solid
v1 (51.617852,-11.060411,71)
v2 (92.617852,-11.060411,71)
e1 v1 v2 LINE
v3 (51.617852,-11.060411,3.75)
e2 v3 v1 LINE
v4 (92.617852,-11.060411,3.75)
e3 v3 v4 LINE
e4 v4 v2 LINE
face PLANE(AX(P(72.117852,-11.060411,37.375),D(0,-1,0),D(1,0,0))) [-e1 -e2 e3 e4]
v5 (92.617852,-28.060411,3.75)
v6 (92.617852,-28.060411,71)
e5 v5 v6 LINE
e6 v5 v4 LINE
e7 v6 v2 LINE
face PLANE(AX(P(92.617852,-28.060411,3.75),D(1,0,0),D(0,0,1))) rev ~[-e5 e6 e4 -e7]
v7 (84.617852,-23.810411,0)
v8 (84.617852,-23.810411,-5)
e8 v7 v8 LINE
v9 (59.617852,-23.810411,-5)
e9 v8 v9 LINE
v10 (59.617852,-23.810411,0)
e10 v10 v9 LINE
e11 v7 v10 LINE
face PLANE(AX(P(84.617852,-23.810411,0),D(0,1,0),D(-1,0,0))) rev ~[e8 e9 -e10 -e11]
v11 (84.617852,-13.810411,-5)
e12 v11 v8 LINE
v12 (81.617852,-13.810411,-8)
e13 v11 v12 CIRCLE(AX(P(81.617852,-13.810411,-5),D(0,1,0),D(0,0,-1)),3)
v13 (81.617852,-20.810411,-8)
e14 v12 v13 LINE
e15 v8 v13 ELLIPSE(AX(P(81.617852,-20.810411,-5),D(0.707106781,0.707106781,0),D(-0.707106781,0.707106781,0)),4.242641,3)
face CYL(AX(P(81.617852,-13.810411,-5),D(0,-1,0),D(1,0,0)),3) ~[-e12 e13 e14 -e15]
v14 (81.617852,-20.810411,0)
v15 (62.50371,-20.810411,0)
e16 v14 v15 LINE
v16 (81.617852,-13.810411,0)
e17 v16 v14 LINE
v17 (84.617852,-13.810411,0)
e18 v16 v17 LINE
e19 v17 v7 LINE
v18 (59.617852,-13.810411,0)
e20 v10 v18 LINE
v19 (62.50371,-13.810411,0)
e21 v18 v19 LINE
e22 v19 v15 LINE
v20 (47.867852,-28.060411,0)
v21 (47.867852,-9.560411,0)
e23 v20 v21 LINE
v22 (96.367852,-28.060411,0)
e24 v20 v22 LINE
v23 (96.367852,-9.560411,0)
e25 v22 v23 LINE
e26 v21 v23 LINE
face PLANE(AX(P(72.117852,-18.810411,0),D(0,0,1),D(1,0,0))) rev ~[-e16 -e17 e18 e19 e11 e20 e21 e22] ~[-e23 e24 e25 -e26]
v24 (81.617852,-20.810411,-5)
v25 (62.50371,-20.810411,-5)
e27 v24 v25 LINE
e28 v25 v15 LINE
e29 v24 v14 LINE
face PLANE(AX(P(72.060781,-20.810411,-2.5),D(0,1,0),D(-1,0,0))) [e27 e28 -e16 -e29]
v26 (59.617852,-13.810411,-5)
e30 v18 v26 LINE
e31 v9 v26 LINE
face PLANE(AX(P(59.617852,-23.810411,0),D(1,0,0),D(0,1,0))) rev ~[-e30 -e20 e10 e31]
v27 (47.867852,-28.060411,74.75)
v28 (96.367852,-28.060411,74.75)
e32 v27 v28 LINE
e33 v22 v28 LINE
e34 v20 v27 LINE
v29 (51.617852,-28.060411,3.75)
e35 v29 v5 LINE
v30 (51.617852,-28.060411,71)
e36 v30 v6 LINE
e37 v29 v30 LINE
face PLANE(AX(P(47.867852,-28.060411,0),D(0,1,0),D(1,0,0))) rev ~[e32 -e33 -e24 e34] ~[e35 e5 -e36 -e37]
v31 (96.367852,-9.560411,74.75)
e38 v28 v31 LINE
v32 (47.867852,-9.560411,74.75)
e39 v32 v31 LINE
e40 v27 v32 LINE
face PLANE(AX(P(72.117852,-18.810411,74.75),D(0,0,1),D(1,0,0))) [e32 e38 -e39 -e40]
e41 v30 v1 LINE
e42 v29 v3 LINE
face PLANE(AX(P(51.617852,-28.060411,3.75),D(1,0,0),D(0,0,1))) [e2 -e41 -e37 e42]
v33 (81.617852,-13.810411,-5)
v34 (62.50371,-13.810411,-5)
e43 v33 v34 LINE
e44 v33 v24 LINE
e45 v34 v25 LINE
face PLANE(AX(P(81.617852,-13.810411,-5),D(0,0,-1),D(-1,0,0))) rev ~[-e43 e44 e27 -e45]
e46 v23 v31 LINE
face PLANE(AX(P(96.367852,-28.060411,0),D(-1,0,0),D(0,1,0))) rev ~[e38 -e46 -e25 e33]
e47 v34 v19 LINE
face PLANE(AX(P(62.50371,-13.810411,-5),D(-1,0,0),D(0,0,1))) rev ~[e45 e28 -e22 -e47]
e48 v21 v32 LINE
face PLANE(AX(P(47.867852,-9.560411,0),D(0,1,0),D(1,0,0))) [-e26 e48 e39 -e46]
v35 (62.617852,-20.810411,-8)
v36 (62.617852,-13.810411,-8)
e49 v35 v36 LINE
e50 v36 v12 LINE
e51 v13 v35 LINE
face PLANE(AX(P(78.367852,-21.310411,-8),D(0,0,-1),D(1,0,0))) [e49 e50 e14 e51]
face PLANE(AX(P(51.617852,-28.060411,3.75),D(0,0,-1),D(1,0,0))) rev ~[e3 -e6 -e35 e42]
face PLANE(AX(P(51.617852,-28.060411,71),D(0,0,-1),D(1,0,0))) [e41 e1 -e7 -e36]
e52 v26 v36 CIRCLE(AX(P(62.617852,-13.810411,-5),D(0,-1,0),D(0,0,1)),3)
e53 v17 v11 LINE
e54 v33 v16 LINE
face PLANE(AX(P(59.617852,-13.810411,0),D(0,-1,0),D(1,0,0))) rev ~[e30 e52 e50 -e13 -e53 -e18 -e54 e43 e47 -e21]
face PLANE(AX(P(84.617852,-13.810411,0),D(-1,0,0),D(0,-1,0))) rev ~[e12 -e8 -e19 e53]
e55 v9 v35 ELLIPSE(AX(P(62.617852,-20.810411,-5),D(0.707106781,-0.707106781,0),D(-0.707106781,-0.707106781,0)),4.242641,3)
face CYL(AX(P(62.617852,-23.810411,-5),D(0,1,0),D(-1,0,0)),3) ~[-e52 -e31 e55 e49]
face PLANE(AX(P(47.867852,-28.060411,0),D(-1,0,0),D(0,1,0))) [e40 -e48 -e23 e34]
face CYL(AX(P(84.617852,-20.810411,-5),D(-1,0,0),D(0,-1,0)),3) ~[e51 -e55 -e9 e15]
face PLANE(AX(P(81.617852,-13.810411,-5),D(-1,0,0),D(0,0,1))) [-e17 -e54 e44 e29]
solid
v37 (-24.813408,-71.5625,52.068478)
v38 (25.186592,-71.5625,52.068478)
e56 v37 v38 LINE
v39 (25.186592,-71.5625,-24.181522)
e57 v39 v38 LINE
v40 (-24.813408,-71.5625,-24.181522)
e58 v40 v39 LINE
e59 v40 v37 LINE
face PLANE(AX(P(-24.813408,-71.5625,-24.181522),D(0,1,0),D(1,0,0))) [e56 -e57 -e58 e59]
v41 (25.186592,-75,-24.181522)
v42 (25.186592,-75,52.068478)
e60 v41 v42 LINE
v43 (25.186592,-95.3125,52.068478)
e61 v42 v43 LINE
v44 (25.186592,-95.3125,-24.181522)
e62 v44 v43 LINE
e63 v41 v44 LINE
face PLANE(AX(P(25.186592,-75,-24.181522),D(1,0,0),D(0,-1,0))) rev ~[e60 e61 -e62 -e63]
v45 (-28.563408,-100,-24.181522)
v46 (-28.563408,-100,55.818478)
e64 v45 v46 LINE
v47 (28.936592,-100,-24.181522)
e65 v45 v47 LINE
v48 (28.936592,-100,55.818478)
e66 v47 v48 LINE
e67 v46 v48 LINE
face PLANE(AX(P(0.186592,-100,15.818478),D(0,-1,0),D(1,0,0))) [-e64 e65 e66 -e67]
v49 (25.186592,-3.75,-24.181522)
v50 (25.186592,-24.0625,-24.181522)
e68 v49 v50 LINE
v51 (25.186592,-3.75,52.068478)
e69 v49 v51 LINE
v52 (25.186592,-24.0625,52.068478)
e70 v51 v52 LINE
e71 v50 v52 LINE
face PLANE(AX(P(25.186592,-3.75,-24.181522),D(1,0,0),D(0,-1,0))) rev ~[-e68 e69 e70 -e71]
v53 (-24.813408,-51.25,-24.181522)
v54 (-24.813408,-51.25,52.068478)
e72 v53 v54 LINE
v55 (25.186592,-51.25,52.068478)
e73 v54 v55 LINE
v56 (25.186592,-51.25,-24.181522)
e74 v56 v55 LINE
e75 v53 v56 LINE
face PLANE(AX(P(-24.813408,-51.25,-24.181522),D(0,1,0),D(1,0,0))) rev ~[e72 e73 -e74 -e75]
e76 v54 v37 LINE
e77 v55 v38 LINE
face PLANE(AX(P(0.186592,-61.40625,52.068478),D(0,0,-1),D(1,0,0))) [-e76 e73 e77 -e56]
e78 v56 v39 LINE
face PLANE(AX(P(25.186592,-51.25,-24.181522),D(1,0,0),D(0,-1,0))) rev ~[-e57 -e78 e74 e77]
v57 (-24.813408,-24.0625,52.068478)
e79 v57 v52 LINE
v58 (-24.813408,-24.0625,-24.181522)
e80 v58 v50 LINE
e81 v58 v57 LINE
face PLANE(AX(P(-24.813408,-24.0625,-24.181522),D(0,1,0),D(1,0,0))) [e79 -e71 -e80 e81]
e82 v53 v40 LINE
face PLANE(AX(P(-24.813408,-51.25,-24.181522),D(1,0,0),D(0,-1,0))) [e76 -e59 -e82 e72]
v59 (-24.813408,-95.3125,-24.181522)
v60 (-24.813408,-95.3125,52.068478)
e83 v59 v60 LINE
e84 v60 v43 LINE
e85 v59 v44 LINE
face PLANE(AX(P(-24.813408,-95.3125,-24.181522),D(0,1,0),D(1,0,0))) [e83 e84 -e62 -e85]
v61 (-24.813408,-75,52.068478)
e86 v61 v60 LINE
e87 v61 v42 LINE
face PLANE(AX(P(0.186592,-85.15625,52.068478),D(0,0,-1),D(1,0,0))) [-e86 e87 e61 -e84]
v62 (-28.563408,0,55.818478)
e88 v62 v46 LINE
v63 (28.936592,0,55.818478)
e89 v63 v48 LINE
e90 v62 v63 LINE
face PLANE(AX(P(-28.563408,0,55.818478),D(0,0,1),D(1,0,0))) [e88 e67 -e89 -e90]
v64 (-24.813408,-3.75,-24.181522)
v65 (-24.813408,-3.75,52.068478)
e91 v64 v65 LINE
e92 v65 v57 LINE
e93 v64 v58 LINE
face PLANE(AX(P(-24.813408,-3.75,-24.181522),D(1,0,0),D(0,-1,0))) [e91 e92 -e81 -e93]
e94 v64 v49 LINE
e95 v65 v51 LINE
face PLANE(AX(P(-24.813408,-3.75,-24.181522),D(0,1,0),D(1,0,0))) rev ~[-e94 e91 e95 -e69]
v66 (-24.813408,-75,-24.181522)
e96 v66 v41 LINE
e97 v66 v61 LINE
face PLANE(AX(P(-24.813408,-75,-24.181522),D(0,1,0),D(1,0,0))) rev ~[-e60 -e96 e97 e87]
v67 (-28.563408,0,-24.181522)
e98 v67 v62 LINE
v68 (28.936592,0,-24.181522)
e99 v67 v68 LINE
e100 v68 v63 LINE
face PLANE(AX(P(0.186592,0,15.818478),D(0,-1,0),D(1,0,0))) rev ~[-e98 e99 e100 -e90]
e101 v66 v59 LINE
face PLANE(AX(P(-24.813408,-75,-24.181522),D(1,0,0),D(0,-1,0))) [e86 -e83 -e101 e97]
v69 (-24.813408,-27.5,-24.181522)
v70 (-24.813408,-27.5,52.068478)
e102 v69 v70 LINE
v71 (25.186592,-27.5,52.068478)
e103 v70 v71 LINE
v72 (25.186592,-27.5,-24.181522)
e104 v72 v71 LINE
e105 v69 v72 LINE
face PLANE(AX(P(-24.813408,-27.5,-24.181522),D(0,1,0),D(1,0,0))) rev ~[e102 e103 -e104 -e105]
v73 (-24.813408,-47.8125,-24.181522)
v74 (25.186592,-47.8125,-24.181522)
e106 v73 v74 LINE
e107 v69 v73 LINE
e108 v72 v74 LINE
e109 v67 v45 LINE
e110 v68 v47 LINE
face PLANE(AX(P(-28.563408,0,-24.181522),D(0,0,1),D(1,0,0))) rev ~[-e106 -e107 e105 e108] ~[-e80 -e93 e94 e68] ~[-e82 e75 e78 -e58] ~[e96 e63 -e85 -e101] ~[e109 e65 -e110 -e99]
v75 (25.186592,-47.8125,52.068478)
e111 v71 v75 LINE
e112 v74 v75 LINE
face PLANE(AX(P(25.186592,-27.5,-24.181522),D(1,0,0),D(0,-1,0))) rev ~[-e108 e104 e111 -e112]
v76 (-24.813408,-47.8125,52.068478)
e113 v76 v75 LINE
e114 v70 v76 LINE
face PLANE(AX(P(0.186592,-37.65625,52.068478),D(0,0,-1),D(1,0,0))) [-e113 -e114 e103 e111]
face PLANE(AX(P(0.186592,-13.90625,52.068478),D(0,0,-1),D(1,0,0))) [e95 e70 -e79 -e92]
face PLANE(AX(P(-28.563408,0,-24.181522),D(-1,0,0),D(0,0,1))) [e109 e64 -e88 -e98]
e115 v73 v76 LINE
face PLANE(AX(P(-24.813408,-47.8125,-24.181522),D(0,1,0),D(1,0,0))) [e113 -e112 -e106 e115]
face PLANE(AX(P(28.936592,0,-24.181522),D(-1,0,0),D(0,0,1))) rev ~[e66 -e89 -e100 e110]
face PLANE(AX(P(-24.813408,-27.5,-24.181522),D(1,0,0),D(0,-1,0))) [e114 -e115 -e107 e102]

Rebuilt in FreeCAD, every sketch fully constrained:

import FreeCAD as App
import Part
import Sketcher


def edges_at(feature, points):
    """Names of the edges that pass closest to the given points."""
    edges = feature.Shape.Edges
    near = lambda p: min(range(len(edges)), key=lambda i: edges[i].distToShape(Part.Vertex(*p))[0])
    return sorted({f"Edge{near(p) + 1}" for p in points})

doc = App.newDocument("Part")
body = doc.addObject("PartDesign::Body", "Body")

# Sketch on XZ plane
sketch1 = body.newObject("Sketcher::SketchObject", "Sketch")
sketch1.AttachmentSupport = (doc.getObject("XZ_Plane"), [""])
sketch1.MapMode = "FlatFace"
sketch1.addGeometry([
    Part.LineSegment(App.Vector(-29, 56, 0), App.Vector(-29, -24, 0)),
    Part.LineSegment(App.Vector(-29, -24, 0), App.Vector(29, -24, 0)),
    Part.LineSegment(App.Vector(29, -24, 0), App.Vector(29, 56, 0)),
    Part.LineSegment(App.Vector(29, 56, 0), App.Vector(-29, 56, 0)),
], False)
sketch1.addConstraint([
    Sketcher.Constraint("Coincident", 0, 2, 1, 1),
    Sketcher.Constraint("Coincident", 1, 2, 2, 1),
    Sketcher.Constraint("Coincident", 2, 2, 3, 1),
    Sketcher.Constraint("Coincident", 3, 2, 0, 1),
    Sketcher.Constraint("Vertical", 0),
    Sketcher.Constraint("Horizontal", 1),
    Sketcher.Constraint("Vertical", 2),
    Sketcher.Constraint("Horizontal", 3),
    Sketcher.Constraint("DistanceY", 0, 2, 0, 1, 80.0),
    Sketcher.Constraint("DistanceX", 1, 1, 1, 2, 57.5),
    Sketcher.Constraint("DistanceX", 0, 2, -1, 1, 28.563408),
    Sketcher.Constraint("DistanceY", 0, 2, -1, 1, 24.181522),
])
pad1 = body.newObject("PartDesign::Pad", "Pad")
pad1.Profile = sketch1
pad1.Length = 100

# Sketch on XY plane
sketch2 = body.newObject("Sketcher::SketchObject", "Sketch001")
sketch2.AttachmentSupport = (doc.getObject("XY_Plane"), [""])
sketch2.MapMode = "FlatFace"
sketch2.AttachmentOffset = App.Placement(App.Vector(0, 0, -24.181522), App.Rotation())
sketch2.addGeometry([
    Part.LineSegment(App.Vector(-25, -24, 0), App.Vector(-25, -4, 0)),  # 0
    Part.LineSegment(App.Vector(-25, -4, 0), App.Vector(25, -4, 0)),  # 1
    Part.LineSegment(App.Vector(25, -4, 0), App.Vector(25, -24, 0)),  # 2
    Part.LineSegment(App.Vector(25, -24, 0), App.Vector(-25, -24, 0)),  # 3
    Part.LineSegment(App.Vector(-25, -48, 0), App.Vector(-25, -28, 0)),  # 4
    Part.LineSegment(App.Vector(-25, -28, 0), App.Vector(25, -28, 0)),  # 5
    Part.LineSegment(App.Vector(25, -28, 0), App.Vector(25, -48, 0)),  # 6
    Part.LineSegment(App.Vector(25, -48, 0), App.Vector(-25, -48, 0)),  # 7
    Part.LineSegment(App.Vector(-25, -72, 0), App.Vector(-25, -51, 0)),  # 8
    Part.LineSegment(App.Vector(-25, -51, 0), App.Vector(25, -51, 0)),  # 9
    Part.LineSegment(App.Vector(25, -51, 0), App.Vector(25, -72, 0)),  # 10
    Part.LineSegment(App.Vector(25, -72, 0), App.Vector(-25, -72, 0)),  # 11
    Part.LineSegment(App.Vector(-25, -95, 0), App.Vector(-25, -75, 0)),  # 12
    Part.LineSegment(App.Vector(-25, -75, 0), App.Vector(25, -75, 0)),  # 13
    Part.LineSegment(App.Vector(25, -75, 0), App.Vector(25, -95, 0)),  # 14
    Part.LineSegment(App.Vector(25, -95, 0), App.Vector(-25, -95, 0)),  # 15
], False)
sketch2.addConstraint([
    Sketcher.Constraint("Coincident", 0, 2, 1, 1),
    Sketcher.Constraint("Coincident", 1, 2, 2, 1),
    Sketcher.Constraint("Coincident", 2, 2, 3, 1),
    Sketcher.Constraint("Coincident", 3, 2, 0, 1),
    Sketcher.Constraint("Coincident", 4, 2, 5, 1),
    Sketcher.Constraint("Coincident", 5, 2, 6, 1),
    Sketcher.Constraint("Coincident", 6, 2, 7, 1),
    Sketcher.Constraint("Coincident", 7, 2, 4, 1),
    Sketcher.Constraint("Coincident", 8, 2, 9, 1),
    Sketcher.Constraint("Coincident", 9, 2, 10, 1),
    Sketcher.Constraint("Coincident", 10, 2, 11, 1),
    Sketcher.Constraint("Coincident", 11, 2, 8, 1),
    Sketcher.Constraint("Coincident", 12, 2, 13, 1),
    Sketcher.Constraint("Coincident", 13, 2, 14, 1),
    Sketcher.Constraint("Coincident", 14, 2, 15, 1),
    Sketcher.Constraint("Coincident", 15, 2, 12, 1),
    Sketcher.Constraint("Vertical", 0),
    Sketcher.Constraint("Horizontal", 1),
    Sketcher.Constraint("Vertical", 2),
    Sketcher.Constraint("Horizontal", 3),
    Sketcher.Constraint("Vertical", 4),
    Sketcher.Constraint("Horizontal", 5),
    Sketcher.Constraint("Vertical", 6),
    Sketcher.Constraint("Horizontal", 7),
    Sketcher.Constraint("Vertical", 8),
    Sketcher.Constraint("Horizontal", 9),
    Sketcher.Constraint("Vertical", 10),
    Sketcher.Constraint("Horizontal", 11),
    Sketcher.Constraint("Vertical", 12),
    Sketcher.Constraint("Horizontal", 13),
    Sketcher.Constraint("Vertical", 14),
    Sketcher.Constraint("Horizontal", 15),
    Sketcher.Constraint("Vertical", 3, 2, 4, 2),
    Sketcher.Constraint("Vertical", 2, 2, 5, 2),
    Sketcher.Constraint("Vertical", 7, 2, 8, 2),
    Sketcher.Constraint("Vertical", 6, 2, 9, 2),
    Sketcher.Constraint("Vertical", 11, 2, 12, 2),
    Sketcher.Constraint("Vertical", 10, 2, 13, 2),
    Sketcher.Constraint("Equal", 2, 4),
    Sketcher.Constraint("Equal", 6, 8),
    Sketcher.Constraint("Equal", 10, 12),
    Sketcher.Constraint("DistanceX", 1, 1, 1, 2, 50.0),
    Sketcher.Constraint("DistanceY", 12, 2, -1, 1, 75.0),
    Sketcher.Constraint("DistanceY", 4, 2, -1, 1, 27.5),
    Sketcher.Constraint("DistanceY", 8, 2, 0, 2, 47.5),
    Sketcher.Constraint("DistanceY", 0, 2, -1, 1, 3.75),
    Sketcher.Constraint("DistanceY", 0, 1, 0, 2, 20.3125),
    Sketcher.Constraint("DistanceX", 0, 2, -1, 1, 24.813408),
])
pocket1 = body.newObject("PartDesign::Pocket", "Pocket")
pocket1.Profile = sketch2
pocket1.Length = 76.25
pocket1.Reversed = True
body2 = doc.addObject("PartDesign::Body", "Body001")

# Sketch on XY plane
sketch3 = body2.newObject("Sketcher::SketchObject", "Sketch002")
sketch3.AttachmentSupport = (doc.getObject("XY_Plane001"), [""])
sketch3.MapMode = "FlatFace"
sketch3.addGeometry([
    Part.LineSegment(App.Vector(48, -10, 0), App.Vector(48, -28, 0)),
    Part.LineSegment(App.Vector(48, -28, 0), App.Vector(96, -28, 0)),
    Part.LineSegment(App.Vector(96, -28, 0), App.Vector(96, -10, 0)),
    Part.LineSegment(App.Vector(96, -10, 0), App.Vector(48, -10, 0)),
], False)
sketch3.addConstraint([
    Sketcher.Constraint("Coincident", 0, 2, 1, 1),
    Sketcher.Constraint("Coincident", 1, 2, 2, 1),
    Sketcher.Constraint("Coincident", 2, 2, 3, 1),
    Sketcher.Constraint("Coincident", 3, 2, 0, 1),
    Sketcher.Constraint("Vertical", 0),
    Sketcher.Constraint("Horizontal", 1),
    Sketcher.Constraint("Vertical", 2),
    Sketcher.Constraint("Horizontal", 3),
    Sketcher.Constraint("DistanceX", 1, 1, 1, 2, 48.5),
    Sketcher.Constraint("DistanceY", 0, 2, 0, 1, 18.5),
    Sketcher.Constraint("DistanceY", 0, 2, -1, 1, 28.060411),
    Sketcher.Constraint("DistanceX", -1, 1, 1, 2, 96.367852),
])
pad2 = body2.newObject("PartDesign::Pad", "Pad001")
pad2.Profile = sketch3
pad2.Length = 74.75

# Sketch on XY plane
sketch4 = body2.newObject("Sketcher::SketchObject", "Sketch003")
sketch4.AttachmentSupport = (doc.getObject("XY_Plane001"), [""])
sketch4.MapMode = "FlatFace"
sketch4.addGeometry([
    Part.LineSegment(App.Vector(85, -24, 0), App.Vector(60, -24, 0)),
    Part.LineSegment(App.Vector(60, -24, 0), App.Vector(60, -14, 0)),
    Part.LineSegment(App.Vector(60, -14, 0), App.Vector(85, -14, 0)),
    Part.LineSegment(App.Vector(85, -14, 0), App.Vector(85, -24, 0)),
], False)
sketch4.addConstraint([
    Sketcher.Constraint("Coincident", 0, 2, 1, 1),
    Sketcher.Constraint("Coincident", 1, 2, 2, 1),
    Sketcher.Constraint("Coincident", 2, 2, 3, 1),
    Sketcher.Constraint("Coincident", 3, 2, 0, 1),
    Sketcher.Constraint("Horizontal", 0),
    Sketcher.Constraint("Vertical", 1),
    Sketcher.Constraint("Horizontal", 2),
    Sketcher.Constraint("Vertical", 3),
    Sketcher.Constraint("DistanceX", 0, 2, 0, 1, 25.0),
    Sketcher.Constraint("DistanceY", 1, 1, 1, 2, 10.0),
    Sketcher.Constraint("DistanceY", 0, 2, -1, 1, 23.810411),
    Sketcher.Constraint("DistanceX", -1, 1, 2, 2, 84.617852),
])
pad3 = body2.newObject("PartDesign::Pad", "Pad002")
pad3.Profile = sketch4
pad3.Length = 8
pad3.Reversed = True
doc.recompute()

fillet = body2.newObject("PartDesign::Fillet", "Fillet")
fillet.Base = (pad3, edges_at(pad3, [(72.118, -23.81, -8), (59.618, -18.81, -8), (84.618, -18.81, -8)]))
fillet.Radius = 3

# Sketch on XZ plane
sketch5 = body2.newObject("Sketcher::SketchObject", "Sketch004")
sketch5.AttachmentSupport = (doc.getObject("XZ_Plane001"), [""])
sketch5.MapMode = "FlatFace"
sketch5.AttachmentOffset = App.Placement(App.Vector(0, 0, 13.810411), App.Rotation())
sketch5.addGeometry([
    Part.LineSegment(App.Vector(82, 0, 0), App.Vector(82, -5, 0)),
    Part.LineSegment(App.Vector(82, -5, 0), App.Vector(63, -5, 0)),
    Part.LineSegment(App.Vector(63, -5, 0), App.Vector(63, 0, 0)),
    Part.LineSegment(App.Vector(63, 0, 0), App.Vector(82, 0, 0)),
], False)
sketch5.addConstraint([
    Sketcher.Constraint("Coincident", 0, 2, 1, 1),
    Sketcher.Constraint("Coincident", 1, 2, 2, 1),
    Sketcher.Constraint("Coincident", 2, 2, 3, 1),
    Sketcher.Constraint("Coincident", 3, 2, 0, 1),
    Sketcher.Constraint("Vertical", 0),
    Sketcher.Constraint("Horizontal", 1),
    Sketcher.Constraint("Vertical", 2),
    Sketcher.Constraint("Horizontal", 3),
    Sketcher.Constraint("PointOnObject", 2, 2, -1),
    Sketcher.Constraint("DistanceY", 0, 2, 0, 1, 5.0),
    Sketcher.Constraint("DistanceX", 1, 2, 1, 1, 19.114142),
    Sketcher.Constraint("DistanceX", -1, 1, 0, 2, 81.617852),
])
pocket2 = body2.newObject("PartDesign::Pocket", "Pocket001")
pocket2.Profile = sketch5
pocket2.Length = 7
pocket2.Reversed = True

# Sketch on XZ plane
sketch6 = body2.newObject("Sketcher::SketchObject", "Sketch005")
sketch6.AttachmentSupport = (doc.getObject("XZ_Plane001"), [""])
sketch6.MapMode = "FlatFace"
sketch6.AttachmentOffset = App.Placement(App.Vector(0, 0, 28.060411), App.Rotation())
sketch6.addGeometry([
    Part.LineSegment(App.Vector(52, 71, 0), App.Vector(52, 4, 0)),
    Part.LineSegment(App.Vector(52, 4, 0), App.Vector(93, 4, 0)),
    Part.LineSegment(App.Vector(93, 4, 0), App.Vector(93, 71, 0)),
    Part.LineSegment(App.Vector(93, 71, 0), App.Vector(52, 71, 0)),
], False)
sketch6.addConstraint([
    Sketcher.Constraint("Coincident", 0, 2, 1, 1),
    Sketcher.Constraint("Coincident", 1, 2, 2, 1),
    Sketcher.Constraint("Coincident", 2, 2, 3, 1),
    Sketcher.Constraint("Coincident", 3, 2, 0, 1),
    Sketcher.Constraint("Vertical", 0),
    Sketcher.Constraint("Horizontal", 1),
    Sketcher.Constraint("Vertical", 2),
    Sketcher.Constraint("Horizontal", 3),
    Sketcher.Constraint("DistanceX", 1, 1, 1, 2, 41.0),
    Sketcher.Constraint("DistanceY", -1, 1, 2, 2, 71.0),
    Sketcher.Constraint("DistanceY", 0, 2, 0, 1, 67.25),
    Sketcher.Constraint("DistanceX", -1, 1, 1, 2, 92.617852),
])
pocket3 = body2.newObject("PartDesign::Pocket", "Pocket002")
pocket3.Profile = sketch6
pocket3.Length = 17

doc.recompute()
